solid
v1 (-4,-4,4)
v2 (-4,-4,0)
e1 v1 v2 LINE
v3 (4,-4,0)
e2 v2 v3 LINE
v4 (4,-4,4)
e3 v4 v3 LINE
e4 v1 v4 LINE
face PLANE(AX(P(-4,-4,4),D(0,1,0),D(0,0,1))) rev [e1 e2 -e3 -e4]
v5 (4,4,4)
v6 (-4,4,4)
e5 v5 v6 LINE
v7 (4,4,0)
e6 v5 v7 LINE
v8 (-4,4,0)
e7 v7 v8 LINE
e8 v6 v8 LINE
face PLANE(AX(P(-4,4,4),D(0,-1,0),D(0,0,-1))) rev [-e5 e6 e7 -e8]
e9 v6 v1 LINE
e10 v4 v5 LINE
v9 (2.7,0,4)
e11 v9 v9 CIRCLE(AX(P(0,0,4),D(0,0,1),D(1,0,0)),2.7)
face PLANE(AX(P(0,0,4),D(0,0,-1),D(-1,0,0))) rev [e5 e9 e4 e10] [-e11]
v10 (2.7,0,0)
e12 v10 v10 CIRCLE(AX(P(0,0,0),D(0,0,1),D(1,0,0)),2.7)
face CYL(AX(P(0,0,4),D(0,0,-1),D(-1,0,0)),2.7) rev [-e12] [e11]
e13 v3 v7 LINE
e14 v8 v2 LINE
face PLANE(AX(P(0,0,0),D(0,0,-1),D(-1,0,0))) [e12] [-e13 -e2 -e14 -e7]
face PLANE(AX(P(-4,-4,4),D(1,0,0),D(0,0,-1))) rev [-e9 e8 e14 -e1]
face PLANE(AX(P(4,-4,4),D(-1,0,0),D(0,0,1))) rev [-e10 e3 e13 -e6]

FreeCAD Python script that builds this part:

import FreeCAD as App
import Part
import Sketcher

V = App.Vector
Q = App.Units.Quantity


def add_polygon(sketch, points):
    """Adds a closed chain of lines whose ends are joined by coincident constraints."""
    first, n = sketch.GeometryCount, len(points)
    for a, b in zip(points, points[1:] + points[:1]):
        sketch.addGeometry(Part.LineSegment(App.Vector(*a, 0), App.Vector(*b, 0)), False)
    for i in range(n):
        sketch.addConstraint(Sketcher.Constraint("Coincident", first + i, 2, first + (i + 1) % n, 1))

doc = App.newDocument("Part")
body = doc.addObject("PartDesign::Body", "Body")

# Sketch on XY plane
sketch1 = body.newObject("Sketcher::SketchObject", "Sketch")
sketch1.AttachmentSupport = (doc.getObject("XY_Plane"), [""])
sketch1.MapMode = "FlatFace"
add_polygon(sketch1, [(-4, 4), (-4, -4), (4, -4), (4, 4)])  # lines 0-3
sketch1.addConstraint([
    Sketcher.Constraint("Vertical", 0),
    Sketcher.Constraint("Horizontal", 1),
    Sketcher.Constraint("Vertical", 2),
    Sketcher.Constraint("Horizontal", 3),
    Sketcher.Constraint("Symmetric", 0, 2, 2, 2, -1, 1),
    Sketcher.Constraint("Equal", 3, 0),
    Sketcher.Constraint("DistanceX", 1, 1, 1, 2, Q("8 mm")),
])
pad1 = body.newObject("PartDesign::Pad", "Pad")
pad1.Profile = sketch1
pad1.Length = 4

# Sketch on XY plane
sketch2 = body.newObject("Sketcher::SketchObject", "Sketch001")
sketch2.AttachmentSupport = (doc.getObject("XY_Plane"), [""])
sketch2.MapMode = "FlatFace"
sketch2.addGeometry(Part.Circle(V(0, 0, 0), V(0, 0, 1), 2.7), False)
sketch2.addConstraint([
    Sketcher.Constraint("Coincident", 0, 3, -1, 1),
    Sketcher.Constraint("Diameter", 0, Q("5.4 mm")),
])
pocket1 = body.newObject("PartDesign::Pocket", "Pocket")
pocket1.Profile = sketch2
pocket1.Length = 4
pocket1.Reversed = True

doc.recompute()
